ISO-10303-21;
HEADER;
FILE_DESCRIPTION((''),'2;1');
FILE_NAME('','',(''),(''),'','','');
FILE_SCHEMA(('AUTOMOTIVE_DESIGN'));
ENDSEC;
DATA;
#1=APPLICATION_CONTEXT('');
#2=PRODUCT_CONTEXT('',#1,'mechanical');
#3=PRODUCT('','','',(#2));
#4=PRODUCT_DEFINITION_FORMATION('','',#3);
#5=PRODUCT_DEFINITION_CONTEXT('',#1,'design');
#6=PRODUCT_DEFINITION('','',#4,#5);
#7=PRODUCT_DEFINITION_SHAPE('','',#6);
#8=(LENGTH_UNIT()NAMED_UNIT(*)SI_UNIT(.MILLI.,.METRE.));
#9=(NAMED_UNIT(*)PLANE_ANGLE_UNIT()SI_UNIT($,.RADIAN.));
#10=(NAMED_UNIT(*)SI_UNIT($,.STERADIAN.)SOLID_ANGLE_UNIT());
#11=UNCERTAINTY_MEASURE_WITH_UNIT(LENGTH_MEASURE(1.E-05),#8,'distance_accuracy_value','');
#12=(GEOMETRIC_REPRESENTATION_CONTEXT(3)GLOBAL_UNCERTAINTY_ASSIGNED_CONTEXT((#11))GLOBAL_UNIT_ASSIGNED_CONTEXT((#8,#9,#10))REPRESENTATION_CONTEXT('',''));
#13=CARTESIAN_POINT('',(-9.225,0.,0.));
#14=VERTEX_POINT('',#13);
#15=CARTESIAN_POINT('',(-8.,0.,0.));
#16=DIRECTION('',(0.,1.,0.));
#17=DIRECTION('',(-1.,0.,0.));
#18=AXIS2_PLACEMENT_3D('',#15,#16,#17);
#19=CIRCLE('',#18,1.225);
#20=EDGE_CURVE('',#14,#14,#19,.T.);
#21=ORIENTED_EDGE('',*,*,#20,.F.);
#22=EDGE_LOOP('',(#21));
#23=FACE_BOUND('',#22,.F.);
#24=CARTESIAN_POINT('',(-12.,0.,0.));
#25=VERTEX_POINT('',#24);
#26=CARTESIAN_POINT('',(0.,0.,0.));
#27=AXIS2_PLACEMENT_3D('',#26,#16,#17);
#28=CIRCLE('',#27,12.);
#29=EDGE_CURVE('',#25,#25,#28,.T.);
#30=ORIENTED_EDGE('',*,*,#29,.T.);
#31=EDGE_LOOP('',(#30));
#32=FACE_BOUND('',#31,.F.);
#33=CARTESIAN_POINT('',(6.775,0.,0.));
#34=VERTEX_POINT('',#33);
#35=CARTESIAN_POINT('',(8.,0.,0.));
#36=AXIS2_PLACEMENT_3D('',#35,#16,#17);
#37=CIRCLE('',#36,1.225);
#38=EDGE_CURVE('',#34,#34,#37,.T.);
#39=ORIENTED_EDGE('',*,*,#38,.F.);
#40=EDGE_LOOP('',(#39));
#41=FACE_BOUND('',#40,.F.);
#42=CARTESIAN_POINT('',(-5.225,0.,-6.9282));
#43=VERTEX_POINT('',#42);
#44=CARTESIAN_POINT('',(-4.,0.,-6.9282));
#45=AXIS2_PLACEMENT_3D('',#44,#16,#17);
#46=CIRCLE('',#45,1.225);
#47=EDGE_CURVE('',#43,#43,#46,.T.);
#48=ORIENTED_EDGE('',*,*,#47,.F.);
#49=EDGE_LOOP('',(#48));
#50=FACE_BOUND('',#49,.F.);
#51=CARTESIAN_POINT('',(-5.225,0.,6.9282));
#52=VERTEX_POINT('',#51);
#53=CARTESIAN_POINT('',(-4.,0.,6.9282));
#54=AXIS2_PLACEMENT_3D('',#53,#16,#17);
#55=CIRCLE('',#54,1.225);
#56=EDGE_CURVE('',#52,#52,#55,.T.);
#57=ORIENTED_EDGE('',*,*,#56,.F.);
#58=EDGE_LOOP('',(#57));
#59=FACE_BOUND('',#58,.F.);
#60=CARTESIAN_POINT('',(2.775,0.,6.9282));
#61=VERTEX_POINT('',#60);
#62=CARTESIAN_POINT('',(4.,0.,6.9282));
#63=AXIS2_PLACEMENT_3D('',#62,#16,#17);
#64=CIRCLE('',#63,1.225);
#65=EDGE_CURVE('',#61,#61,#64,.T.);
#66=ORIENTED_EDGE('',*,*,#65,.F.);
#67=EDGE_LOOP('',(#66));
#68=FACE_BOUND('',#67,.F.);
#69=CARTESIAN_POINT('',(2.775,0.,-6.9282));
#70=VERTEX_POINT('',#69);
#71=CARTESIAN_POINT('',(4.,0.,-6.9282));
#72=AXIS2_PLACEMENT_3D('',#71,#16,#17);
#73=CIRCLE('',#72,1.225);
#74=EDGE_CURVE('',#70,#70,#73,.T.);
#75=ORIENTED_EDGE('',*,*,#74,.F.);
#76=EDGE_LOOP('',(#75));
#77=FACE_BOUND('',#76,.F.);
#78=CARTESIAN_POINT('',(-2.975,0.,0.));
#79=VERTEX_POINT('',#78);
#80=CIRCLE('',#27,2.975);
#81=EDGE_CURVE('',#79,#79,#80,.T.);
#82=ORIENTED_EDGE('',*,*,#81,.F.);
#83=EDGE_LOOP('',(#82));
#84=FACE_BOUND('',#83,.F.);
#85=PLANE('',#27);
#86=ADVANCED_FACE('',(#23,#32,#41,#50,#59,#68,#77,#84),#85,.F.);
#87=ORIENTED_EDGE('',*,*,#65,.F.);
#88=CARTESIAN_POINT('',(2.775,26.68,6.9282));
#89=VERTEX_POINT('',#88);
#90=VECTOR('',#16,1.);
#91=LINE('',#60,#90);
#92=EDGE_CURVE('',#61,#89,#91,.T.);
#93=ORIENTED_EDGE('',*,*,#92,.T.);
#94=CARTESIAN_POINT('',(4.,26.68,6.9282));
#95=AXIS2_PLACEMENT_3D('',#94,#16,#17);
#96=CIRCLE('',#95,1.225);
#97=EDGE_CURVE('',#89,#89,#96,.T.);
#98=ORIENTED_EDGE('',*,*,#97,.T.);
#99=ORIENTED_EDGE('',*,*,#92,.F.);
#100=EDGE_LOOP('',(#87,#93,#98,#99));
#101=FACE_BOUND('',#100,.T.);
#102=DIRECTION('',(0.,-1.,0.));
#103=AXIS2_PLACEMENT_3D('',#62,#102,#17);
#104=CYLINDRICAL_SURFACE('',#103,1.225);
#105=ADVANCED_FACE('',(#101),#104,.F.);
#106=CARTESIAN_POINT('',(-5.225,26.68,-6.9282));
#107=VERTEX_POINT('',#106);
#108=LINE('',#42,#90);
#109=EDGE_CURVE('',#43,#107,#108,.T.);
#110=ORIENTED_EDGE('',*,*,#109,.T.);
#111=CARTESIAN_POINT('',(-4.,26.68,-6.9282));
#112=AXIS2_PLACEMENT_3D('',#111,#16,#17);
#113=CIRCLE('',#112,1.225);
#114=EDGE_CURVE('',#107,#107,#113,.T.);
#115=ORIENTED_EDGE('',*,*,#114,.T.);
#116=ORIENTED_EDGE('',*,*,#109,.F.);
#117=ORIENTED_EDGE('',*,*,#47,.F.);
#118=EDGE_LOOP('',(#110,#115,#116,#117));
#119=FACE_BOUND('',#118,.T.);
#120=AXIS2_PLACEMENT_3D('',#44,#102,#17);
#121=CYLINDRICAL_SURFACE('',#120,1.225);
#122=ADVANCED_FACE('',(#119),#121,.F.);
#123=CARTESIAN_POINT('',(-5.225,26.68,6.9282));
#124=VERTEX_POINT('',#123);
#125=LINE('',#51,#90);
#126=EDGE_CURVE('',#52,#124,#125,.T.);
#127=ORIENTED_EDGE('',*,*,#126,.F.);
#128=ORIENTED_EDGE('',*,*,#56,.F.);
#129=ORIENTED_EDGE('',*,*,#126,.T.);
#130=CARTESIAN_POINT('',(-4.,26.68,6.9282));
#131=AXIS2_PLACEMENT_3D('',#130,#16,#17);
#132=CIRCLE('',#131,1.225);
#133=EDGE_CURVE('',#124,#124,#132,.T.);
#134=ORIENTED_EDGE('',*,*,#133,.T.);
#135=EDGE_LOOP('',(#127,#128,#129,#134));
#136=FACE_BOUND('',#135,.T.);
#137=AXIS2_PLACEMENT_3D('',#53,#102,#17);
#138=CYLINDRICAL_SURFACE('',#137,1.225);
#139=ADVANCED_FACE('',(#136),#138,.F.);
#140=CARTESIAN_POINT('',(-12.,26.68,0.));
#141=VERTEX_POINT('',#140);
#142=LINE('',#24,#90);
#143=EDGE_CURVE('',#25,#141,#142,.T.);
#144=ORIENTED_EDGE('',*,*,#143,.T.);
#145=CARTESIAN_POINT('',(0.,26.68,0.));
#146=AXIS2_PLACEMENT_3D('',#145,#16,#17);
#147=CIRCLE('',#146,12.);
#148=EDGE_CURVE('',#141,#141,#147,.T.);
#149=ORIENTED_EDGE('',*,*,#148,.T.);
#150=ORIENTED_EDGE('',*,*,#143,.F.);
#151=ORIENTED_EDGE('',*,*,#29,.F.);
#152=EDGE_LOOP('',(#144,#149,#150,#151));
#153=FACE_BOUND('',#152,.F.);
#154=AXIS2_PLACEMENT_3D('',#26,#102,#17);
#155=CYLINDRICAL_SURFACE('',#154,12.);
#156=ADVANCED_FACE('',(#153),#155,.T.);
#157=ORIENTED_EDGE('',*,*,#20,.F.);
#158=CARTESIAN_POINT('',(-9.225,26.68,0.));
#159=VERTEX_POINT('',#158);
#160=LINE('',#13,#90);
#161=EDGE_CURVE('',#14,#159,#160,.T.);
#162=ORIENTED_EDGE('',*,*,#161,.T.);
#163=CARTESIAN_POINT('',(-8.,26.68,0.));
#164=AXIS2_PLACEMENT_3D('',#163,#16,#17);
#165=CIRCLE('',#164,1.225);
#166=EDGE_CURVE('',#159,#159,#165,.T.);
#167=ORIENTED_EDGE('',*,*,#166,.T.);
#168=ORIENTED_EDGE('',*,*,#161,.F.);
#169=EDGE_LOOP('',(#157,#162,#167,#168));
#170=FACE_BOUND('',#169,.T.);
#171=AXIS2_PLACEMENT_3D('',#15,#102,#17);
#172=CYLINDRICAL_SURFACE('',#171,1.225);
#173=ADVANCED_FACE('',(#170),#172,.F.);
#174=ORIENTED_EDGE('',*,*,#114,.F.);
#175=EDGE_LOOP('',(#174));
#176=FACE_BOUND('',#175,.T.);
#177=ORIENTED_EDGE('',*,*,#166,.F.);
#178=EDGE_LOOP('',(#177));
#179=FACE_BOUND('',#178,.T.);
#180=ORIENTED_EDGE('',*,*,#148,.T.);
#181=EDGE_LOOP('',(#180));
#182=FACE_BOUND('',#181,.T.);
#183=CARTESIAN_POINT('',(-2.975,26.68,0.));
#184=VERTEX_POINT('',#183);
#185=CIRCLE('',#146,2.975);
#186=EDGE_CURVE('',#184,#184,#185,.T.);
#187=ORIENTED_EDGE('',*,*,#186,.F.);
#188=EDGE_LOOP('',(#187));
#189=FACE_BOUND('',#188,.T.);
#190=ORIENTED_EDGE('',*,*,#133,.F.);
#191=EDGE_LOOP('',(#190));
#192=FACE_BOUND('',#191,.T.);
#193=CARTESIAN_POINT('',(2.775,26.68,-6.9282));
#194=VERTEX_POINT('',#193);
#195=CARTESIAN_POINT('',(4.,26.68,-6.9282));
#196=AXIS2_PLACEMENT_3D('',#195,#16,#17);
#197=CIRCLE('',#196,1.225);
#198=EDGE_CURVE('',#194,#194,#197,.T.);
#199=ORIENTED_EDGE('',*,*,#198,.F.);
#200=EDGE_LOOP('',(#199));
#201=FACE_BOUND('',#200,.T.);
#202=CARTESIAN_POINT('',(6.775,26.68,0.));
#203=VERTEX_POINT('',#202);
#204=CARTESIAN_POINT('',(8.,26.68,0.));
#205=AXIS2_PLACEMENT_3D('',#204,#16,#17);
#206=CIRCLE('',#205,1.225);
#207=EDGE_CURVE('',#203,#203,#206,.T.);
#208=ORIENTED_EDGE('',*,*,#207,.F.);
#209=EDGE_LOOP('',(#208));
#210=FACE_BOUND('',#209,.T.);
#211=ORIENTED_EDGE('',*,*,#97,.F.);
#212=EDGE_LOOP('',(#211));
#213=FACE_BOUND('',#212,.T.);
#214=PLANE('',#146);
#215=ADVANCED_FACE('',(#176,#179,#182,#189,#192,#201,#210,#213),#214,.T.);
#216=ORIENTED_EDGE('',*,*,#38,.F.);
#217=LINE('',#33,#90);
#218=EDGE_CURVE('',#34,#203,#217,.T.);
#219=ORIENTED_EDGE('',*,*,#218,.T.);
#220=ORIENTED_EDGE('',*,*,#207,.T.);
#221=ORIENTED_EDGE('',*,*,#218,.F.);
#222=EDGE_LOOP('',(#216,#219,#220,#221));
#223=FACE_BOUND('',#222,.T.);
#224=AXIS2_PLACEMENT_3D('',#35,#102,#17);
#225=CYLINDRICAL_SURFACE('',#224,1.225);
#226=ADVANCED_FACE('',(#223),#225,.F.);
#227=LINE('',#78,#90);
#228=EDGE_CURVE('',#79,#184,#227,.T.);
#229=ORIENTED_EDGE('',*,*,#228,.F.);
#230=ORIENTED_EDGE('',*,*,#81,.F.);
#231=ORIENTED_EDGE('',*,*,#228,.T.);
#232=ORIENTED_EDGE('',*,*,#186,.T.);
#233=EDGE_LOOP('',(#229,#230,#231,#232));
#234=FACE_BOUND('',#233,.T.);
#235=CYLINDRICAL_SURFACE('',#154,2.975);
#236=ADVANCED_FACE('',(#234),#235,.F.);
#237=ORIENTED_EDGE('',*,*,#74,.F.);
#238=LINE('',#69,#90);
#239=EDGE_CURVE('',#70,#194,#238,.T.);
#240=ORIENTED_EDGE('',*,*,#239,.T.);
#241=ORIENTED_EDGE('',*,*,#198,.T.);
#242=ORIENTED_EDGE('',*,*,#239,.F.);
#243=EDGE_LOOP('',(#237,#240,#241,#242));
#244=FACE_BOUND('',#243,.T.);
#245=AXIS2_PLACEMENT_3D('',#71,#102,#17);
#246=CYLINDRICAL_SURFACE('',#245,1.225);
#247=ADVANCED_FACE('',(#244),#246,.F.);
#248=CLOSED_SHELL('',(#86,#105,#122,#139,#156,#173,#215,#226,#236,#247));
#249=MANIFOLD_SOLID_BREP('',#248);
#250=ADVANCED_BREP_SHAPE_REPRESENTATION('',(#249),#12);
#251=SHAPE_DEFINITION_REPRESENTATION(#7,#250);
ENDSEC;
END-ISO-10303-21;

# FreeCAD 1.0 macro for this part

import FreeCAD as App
import Part
import Sketcher
from FreeCAD import Vector

doc = App.newDocument("Part")
body = doc.addObject("PartDesign::Body", "Body")

sketch1 = body.newObject("Sketcher::SketchObject", "Sketch")
sketch1.AttachmentSupport = (doc.getObject("XZ_Plane"), [""])
sketch1.MapMode = "FlatFace"
sketch1.addGeometry([
    Part.Circle(Vector(0, 0, 0), Vector(0, 0, 1), 12),
    Part.Circle(Vector(4, -6.9, 0), Vector(0, 0, 1), 1.2),
    Part.Circle(Vector(-4, -6.9, 0), Vector(0, 0, 1), 1.2),
    Part.Circle(Vector(8, 0, 0), Vector(0, 0, 1), 1.2),
    Part.Circle(Vector(4, 6.9, 0), Vector(0, 0, 1), 1.2),
    Part.Circle(Vector(0, 0, 0), Vector(0, 0, 1), 3),
    Part.Circle(Vector(-8, 0, 0), Vector(0, 0, 1), 1.2),
    Part.Circle(Vector(-4, 6.9, 0), Vector(0, 0, 1), 1.2),
], False)
sketch1.addConstraint([
    Sketcher.Constraint("Coincident", 0, 3, -1, 1),
    Sketcher.Constraint("Coincident", 5, 3, -1, 1),
    Sketcher.Constraint("Equal", 1, 2),
    Sketcher.Constraint("Equal", 2, 3),
    Sketcher.Constraint("Equal", 3, 4),
    Sketcher.Constraint("Equal", 4, 6),
    Sketcher.Constraint("Equal", 6, 7),
    Sketcher.Constraint("Symmetric", 2, 3, 4, 3, -1, 1),
    Sketcher.Constraint("Symmetric", 3, 3, 6, 3, -1, 1),
    Sketcher.Constraint("Symmetric", 1, 3, 7, 3, -1, 1),
    Sketcher.Constraint("Symmetric", 1, 3, 2, 3, -2),
    Sketcher.Constraint("PointOnObject", 3, 3, -1),
    Sketcher.Constraint("Diameter", 0, 24.0),
    Sketcher.Constraint("Diameter", 1, 2.45),
    Sketcher.Constraint("Diameter", 5, 5.95),
    Sketcher.Constraint("DistanceX", -1, 1, 3, 3, 8.0),
    Sketcher.Constraint("DistanceX", 2, 3, 1, 3, 8.0),
    Sketcher.Constraint("DistanceY", 1, 3, -1, 1, 6.9282),
])
pad1 = body.newObject("PartDesign::Pad", "Pad")
pad1.Profile = sketch1
pad1.Length = 26.68
pad1.Reversed = True

doc.recompute()
